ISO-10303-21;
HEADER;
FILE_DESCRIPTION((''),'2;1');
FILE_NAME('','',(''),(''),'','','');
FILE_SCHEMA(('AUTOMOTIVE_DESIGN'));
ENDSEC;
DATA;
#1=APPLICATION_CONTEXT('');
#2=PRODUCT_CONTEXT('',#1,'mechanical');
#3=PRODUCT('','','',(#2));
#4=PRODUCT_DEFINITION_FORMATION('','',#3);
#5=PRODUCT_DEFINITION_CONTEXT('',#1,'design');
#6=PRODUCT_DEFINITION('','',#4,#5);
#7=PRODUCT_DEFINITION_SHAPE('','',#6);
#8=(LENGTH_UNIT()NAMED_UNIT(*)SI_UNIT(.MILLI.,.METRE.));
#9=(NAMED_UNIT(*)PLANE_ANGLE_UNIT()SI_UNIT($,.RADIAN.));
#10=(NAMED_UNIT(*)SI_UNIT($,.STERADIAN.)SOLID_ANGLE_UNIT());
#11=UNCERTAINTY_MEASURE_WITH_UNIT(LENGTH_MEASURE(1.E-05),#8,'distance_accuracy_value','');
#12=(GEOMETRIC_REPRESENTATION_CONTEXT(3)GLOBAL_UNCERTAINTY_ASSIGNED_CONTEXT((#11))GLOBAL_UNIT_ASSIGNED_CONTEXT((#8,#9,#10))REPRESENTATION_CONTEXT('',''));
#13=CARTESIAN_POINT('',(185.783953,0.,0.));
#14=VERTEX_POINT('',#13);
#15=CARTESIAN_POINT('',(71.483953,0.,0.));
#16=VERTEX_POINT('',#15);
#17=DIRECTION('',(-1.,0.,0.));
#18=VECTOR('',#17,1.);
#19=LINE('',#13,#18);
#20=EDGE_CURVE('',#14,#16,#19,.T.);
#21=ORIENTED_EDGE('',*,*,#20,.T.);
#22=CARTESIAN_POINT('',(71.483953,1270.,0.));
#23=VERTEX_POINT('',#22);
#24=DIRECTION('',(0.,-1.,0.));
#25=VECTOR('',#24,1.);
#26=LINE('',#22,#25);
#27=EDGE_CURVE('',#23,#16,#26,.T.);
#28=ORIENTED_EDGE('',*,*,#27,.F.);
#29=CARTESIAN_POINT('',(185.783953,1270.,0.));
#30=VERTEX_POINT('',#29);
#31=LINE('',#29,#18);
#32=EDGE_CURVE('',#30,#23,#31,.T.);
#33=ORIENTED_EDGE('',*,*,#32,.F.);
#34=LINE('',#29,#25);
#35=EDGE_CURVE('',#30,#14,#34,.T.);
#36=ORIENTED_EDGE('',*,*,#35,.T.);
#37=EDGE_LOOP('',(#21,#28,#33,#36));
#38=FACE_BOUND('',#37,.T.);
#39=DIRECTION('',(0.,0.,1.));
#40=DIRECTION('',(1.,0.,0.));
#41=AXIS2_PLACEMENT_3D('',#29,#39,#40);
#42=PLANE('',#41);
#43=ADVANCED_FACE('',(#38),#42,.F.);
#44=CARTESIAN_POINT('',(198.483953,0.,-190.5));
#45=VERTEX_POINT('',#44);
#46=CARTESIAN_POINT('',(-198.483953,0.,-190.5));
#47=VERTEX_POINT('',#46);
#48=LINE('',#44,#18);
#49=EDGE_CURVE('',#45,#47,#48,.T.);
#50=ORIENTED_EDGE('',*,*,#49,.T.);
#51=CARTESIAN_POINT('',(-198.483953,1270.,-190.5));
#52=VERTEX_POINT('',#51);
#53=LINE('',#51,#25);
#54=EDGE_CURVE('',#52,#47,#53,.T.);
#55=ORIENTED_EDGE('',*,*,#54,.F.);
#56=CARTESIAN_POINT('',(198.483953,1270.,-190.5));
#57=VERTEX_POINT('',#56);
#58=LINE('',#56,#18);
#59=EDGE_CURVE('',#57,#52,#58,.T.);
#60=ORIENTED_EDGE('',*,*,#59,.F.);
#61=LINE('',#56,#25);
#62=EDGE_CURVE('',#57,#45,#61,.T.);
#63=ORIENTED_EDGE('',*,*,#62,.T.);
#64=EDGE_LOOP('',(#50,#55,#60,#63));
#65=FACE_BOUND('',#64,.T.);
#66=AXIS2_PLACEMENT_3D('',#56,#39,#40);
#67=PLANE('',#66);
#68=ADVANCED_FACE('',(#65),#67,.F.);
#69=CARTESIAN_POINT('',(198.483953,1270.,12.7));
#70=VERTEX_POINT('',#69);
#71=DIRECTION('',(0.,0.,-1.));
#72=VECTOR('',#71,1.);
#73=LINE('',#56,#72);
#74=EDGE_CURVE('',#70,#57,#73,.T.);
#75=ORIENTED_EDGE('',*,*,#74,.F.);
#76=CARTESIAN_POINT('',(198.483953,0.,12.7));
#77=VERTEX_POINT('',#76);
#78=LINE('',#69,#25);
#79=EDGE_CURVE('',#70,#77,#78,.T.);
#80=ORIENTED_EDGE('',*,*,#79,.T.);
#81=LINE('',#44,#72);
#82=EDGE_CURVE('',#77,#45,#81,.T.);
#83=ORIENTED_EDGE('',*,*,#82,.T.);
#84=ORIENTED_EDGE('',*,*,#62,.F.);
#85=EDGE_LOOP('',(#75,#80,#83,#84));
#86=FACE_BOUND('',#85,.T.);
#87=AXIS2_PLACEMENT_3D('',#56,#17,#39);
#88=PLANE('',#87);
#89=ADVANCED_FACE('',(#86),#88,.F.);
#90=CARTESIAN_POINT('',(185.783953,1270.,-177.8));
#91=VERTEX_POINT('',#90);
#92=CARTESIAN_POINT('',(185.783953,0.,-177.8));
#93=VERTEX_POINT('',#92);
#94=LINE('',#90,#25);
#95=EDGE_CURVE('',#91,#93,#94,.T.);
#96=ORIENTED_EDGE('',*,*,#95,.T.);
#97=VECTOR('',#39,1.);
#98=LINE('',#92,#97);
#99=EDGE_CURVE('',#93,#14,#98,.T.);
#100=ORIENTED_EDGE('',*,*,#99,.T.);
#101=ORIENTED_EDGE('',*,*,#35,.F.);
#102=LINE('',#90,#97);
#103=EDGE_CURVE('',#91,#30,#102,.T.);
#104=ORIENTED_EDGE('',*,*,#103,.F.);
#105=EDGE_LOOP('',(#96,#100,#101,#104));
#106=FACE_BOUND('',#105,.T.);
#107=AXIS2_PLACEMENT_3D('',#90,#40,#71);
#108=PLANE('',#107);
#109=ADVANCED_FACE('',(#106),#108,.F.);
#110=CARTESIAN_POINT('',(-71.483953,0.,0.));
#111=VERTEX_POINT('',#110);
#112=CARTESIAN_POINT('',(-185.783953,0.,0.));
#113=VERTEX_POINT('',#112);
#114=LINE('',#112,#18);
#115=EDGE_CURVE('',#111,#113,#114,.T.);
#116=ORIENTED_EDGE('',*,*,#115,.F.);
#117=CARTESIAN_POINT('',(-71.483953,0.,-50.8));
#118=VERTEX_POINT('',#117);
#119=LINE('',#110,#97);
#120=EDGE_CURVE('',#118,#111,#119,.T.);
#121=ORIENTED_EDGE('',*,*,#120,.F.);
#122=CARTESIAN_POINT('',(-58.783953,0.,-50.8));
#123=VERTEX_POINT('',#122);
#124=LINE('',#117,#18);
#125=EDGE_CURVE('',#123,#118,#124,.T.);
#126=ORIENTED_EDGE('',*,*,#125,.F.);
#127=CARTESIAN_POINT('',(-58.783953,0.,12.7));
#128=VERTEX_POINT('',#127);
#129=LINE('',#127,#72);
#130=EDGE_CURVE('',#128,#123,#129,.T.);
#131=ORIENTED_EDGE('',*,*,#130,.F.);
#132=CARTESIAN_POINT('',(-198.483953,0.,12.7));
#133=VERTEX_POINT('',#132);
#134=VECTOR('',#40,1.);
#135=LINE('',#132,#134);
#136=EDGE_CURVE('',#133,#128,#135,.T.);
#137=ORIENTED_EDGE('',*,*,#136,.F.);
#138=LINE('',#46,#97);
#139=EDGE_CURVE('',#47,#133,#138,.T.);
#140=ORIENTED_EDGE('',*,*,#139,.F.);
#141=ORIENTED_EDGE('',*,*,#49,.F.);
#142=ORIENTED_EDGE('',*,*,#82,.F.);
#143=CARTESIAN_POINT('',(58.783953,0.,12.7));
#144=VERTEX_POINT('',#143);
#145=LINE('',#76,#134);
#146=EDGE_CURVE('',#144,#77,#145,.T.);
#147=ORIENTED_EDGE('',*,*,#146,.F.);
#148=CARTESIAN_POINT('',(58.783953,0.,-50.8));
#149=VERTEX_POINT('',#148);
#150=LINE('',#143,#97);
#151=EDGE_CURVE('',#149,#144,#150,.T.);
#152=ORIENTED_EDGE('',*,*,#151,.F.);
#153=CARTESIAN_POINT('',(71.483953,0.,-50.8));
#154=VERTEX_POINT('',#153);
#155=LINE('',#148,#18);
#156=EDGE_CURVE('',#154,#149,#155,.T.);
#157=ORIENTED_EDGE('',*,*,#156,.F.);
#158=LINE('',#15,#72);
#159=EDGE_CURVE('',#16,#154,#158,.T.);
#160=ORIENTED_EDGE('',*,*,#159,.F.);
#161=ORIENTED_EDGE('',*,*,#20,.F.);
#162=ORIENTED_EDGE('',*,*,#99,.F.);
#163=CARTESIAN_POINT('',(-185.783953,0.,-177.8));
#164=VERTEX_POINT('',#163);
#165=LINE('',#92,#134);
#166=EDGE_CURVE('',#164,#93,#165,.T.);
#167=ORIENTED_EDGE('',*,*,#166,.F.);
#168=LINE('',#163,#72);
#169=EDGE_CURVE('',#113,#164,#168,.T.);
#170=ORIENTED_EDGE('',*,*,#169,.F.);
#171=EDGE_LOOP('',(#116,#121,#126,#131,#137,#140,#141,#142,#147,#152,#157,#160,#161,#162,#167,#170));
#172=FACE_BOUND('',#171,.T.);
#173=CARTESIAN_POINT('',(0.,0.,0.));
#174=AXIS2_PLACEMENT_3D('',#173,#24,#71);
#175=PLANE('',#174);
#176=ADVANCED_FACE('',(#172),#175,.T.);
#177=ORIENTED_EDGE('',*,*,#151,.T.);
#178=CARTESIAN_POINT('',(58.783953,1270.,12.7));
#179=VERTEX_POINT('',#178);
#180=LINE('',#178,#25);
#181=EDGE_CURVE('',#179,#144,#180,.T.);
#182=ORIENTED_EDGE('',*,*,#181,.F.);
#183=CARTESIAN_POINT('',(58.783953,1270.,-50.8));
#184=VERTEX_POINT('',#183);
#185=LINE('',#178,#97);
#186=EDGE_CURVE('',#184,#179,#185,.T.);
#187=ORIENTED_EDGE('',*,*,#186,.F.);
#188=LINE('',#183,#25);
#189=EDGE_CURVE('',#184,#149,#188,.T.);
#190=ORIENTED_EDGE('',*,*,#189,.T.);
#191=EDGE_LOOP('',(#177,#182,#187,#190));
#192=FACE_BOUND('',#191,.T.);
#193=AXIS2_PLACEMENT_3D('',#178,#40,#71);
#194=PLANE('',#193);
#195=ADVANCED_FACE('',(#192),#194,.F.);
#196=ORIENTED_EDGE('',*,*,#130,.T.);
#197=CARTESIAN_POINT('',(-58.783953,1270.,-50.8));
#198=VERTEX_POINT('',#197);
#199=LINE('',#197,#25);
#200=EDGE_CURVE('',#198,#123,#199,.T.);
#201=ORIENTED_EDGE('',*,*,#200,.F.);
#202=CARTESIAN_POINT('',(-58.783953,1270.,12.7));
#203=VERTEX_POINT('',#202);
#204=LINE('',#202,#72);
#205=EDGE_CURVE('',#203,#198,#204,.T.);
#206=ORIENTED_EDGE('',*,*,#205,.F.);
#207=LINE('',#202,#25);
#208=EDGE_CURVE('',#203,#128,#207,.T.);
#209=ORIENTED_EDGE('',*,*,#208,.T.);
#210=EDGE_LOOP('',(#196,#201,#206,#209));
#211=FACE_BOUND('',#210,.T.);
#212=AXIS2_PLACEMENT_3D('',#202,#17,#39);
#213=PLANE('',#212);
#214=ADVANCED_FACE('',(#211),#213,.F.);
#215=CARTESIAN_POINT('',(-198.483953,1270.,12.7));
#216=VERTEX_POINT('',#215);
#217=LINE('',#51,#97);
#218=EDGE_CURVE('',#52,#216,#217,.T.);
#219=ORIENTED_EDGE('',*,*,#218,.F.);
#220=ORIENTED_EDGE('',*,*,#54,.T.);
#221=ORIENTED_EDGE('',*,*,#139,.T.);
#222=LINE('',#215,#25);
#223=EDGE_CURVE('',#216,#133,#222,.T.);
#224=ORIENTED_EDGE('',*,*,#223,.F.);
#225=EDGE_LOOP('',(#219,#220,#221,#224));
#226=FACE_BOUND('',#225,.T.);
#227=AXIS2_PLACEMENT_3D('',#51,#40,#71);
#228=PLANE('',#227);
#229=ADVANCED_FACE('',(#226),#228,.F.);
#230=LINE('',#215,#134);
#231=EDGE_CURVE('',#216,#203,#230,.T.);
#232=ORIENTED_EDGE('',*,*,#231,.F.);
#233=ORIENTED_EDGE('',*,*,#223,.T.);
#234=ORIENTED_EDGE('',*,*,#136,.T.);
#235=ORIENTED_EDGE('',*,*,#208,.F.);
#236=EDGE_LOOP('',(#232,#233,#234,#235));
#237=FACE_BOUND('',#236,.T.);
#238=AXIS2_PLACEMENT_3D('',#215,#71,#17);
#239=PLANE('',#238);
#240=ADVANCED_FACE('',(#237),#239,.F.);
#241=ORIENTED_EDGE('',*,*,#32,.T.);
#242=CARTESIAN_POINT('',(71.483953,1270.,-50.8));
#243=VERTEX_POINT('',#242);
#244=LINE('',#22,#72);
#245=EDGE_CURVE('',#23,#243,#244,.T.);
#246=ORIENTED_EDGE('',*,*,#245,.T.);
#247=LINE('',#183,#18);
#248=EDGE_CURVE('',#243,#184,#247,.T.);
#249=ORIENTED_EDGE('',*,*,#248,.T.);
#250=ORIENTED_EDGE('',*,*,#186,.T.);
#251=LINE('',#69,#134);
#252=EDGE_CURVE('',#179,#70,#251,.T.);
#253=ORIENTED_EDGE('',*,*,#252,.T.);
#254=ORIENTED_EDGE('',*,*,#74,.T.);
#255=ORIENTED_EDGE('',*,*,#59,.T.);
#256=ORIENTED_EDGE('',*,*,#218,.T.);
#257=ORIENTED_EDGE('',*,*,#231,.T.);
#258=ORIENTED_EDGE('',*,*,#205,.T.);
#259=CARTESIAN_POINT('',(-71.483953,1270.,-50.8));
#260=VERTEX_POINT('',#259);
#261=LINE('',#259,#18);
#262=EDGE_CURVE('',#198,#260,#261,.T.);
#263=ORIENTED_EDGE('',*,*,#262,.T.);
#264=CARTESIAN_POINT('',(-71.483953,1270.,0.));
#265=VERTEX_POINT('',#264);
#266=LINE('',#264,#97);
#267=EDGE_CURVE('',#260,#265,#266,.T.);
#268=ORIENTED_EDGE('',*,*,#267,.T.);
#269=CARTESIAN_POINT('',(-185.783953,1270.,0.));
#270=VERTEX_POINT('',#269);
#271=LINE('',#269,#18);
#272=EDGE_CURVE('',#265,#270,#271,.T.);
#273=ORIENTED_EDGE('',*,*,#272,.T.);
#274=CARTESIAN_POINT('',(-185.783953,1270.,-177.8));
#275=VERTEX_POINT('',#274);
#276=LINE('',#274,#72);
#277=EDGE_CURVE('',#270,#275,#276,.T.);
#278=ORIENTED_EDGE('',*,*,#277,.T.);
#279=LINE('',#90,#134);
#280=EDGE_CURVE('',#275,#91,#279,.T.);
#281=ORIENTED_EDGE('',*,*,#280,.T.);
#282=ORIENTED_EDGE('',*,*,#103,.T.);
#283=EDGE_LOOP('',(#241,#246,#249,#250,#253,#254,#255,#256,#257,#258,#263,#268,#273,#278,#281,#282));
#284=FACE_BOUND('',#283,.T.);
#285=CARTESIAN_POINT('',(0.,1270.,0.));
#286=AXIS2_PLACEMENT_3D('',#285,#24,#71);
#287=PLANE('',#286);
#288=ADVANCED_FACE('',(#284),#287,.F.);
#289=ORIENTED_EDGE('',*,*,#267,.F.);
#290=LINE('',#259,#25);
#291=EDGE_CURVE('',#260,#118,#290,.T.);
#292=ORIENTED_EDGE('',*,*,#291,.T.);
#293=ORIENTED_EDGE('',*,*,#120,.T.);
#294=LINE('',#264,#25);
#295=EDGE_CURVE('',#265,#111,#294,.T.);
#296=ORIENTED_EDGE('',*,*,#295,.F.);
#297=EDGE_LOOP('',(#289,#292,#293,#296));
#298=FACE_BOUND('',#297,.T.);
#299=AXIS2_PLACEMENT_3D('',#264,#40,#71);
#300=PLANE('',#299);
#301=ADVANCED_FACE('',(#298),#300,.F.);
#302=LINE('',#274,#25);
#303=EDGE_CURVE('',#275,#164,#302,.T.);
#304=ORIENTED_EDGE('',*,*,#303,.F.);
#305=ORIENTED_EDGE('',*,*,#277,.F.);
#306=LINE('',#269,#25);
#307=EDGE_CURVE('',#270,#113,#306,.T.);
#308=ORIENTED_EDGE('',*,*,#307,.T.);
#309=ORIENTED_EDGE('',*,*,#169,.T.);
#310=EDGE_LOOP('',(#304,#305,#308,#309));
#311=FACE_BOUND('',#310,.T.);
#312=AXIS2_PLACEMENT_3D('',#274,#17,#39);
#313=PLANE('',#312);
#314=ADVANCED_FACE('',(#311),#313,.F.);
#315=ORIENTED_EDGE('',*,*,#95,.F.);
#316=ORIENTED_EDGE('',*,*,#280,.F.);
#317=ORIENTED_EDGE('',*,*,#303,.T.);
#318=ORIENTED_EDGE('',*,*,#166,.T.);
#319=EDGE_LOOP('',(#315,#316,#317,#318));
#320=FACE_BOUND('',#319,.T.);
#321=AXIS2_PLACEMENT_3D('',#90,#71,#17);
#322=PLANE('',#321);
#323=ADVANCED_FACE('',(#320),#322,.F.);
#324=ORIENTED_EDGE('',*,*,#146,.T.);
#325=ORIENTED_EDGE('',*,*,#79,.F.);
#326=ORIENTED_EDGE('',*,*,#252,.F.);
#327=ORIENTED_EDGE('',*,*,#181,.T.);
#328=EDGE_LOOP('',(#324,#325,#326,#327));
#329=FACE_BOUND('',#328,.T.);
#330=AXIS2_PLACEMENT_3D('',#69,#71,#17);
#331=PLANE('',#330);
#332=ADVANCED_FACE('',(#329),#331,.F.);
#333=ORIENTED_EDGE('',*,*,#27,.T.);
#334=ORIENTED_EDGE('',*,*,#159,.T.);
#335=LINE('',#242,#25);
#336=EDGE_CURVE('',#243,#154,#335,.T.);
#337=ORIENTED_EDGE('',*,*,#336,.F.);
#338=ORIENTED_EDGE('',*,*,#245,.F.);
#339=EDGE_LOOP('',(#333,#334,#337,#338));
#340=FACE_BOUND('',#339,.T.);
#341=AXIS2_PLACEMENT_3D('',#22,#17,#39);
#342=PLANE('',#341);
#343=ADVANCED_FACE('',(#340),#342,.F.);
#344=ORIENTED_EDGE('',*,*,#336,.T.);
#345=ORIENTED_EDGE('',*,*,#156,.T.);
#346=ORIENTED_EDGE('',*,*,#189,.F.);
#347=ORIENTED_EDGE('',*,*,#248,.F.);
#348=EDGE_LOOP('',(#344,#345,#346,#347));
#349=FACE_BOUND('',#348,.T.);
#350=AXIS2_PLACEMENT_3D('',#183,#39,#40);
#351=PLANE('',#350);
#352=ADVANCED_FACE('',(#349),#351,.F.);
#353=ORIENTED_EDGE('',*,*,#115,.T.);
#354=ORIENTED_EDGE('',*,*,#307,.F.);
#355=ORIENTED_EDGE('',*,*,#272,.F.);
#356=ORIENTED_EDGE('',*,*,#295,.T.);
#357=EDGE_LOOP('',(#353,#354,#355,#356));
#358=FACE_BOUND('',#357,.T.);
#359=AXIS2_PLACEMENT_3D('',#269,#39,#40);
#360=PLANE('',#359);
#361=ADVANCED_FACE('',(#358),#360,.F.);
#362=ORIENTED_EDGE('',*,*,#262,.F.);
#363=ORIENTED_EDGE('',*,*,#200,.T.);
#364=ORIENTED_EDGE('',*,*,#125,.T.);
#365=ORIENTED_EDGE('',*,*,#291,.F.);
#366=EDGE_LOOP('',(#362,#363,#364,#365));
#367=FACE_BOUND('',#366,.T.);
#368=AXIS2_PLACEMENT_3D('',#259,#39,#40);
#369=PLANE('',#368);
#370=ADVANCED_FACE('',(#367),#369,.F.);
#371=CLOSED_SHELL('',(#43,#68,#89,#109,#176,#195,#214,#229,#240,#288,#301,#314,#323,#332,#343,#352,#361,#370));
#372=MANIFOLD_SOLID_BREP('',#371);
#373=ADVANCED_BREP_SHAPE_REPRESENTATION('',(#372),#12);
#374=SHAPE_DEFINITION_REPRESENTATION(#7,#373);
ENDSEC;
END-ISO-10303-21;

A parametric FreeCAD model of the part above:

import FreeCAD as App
import Part
import Sketcher

V = App.Vector
Q = App.Units.Quantity


def add_polygon(sketch, points):
    """Adds a closed chain of lines whose ends are joined by coincident constraints."""
    first, n = sketch.GeometryCount, len(points)
    for a, b in zip(points, points[1:] + points[:1]):
        sketch.addGeometry(Part.LineSegment(App.Vector(*a, 0), App.Vector(*b, 0)), False)
    for i in range(n):
        sketch.addConstraint(Sketcher.Constraint("Coincident", first + i, 2, first + (i + 1) % n, 1))

doc = App.newDocument("Part")
params = doc.addObject("Spreadsheet::Sheet", "Params")
for row, (alias, value) in enumerate([
    ("sketch1_height", "8 in"),
    ("sketch1_height2", "2 in"),
    ("sketch1_height3", "7 in"),
    ("sketch1_width", "5.5 in"),
    ("sketch1_width2", "0.5 in"),
    ("pad1_length", "50 in"),
], start=1):
    params.set(f"A{row}", alias)
    params.set(f"B{row}", "=" + value)
    params.setAlias(f"B{row}", alias)

body = doc.addObject("PartDesign::Body", "Body")

sketch1 = body.newObject("Sketcher::SketchObject", "Sketch")
sketch1.AttachmentSupport = (doc.getObject("XZ_Plane"), [""])
sketch1.MapMode = "FlatFace"
add_polygon(sketch1, [(58.783953, -50.8), (58.783953, 12.7), (198.483953, 12.7), (198.483953, -190.5), (-198.483953, -190.5), (-198.483953, 12.7), (-58.783953, 12.7), (-58.783953, -50.8), (-71.483953, -50.8), (-71.483953, 0), (-185.783953, 0), (-185.783953, -177.8), (185.783953, -177.8), (185.783953, 0), (71.483953, 0), (71.483953, -50.8)])
sketch1.addConstraint(Sketcher.Constraint("Vertical", 0))
sketch1.addConstraint(Sketcher.Constraint("Horizontal", 1))
sketch1.addConstraint(Sketcher.Constraint("Vertical", 2))
sketch1.addConstraint(Sketcher.Constraint("Horizontal", 3))
sketch1.addConstraint(Sketcher.Constraint("Vertical", 4))
sketch1.addConstraint(Sketcher.Constraint("Horizontal", 5))
sketch1.addConstraint(Sketcher.Constraint("Vertical", 6))
sketch1.addConstraint(Sketcher.Constraint("Horizontal", 7))
sketch1.addConstraint(Sketcher.Constraint("Vertical", 8))
sketch1.addConstraint(Sketcher.Constraint("Horizontal", 9))
sketch1.addConstraint(Sketcher.Constraint("Vertical", 10))
sketch1.addConstraint(Sketcher.Constraint("Horizontal", 11))
sketch1.addConstraint(Sketcher.Constraint("Vertical", 12))
sketch1.addConstraint(Sketcher.Constraint("Horizontal", 13))
sketch1.addConstraint(Sketcher.Constraint("Vertical", 14))
sketch1.addConstraint(Sketcher.Constraint("Horizontal", 15))
sketch1.addConstraint(Sketcher.Constraint("Symmetric", 9, 2, 12, 2, -1, 1))
sketch1.addConstraint(Sketcher.Constraint("Symmetric", 1, 2, 4, 2, -2))
sketch1.addConstraint(Sketcher.Constraint("Symmetric", 8, 2, 13, 2, -2))
sketch1.addConstraint(Sketcher.Constraint("Symmetric", 6, 2, 15, 2, -2))
sketch1.addConstraint(Sketcher.Constraint("DistanceY", 2, 2, 2, 1, Q("8 in")))
sketch1.addConstraint(Sketcher.Constraint("DistanceY", 8, 1, 8, 2, Q("2 in")))
sketch1.addConstraint(Sketcher.Constraint("DistanceY", 10, 2, 10, 1, Q("7 in")))
sketch1.addConstraint(Sketcher.Constraint("DistanceX", 1, 1, 1, 2, Q("5.5 in")))
sketch1.addConstraint(Sketcher.Constraint("DistanceX", 7, 2, 7, 1, Q("0.5 in")))
sketch1.addConstraint(Sketcher.Constraint("DistanceX", 9, 2, 9, 1, Q("4.5 in")))
sketch1.addConstraint(Sketcher.Constraint("DistanceY", 0, 1, 0, 2, Q("2.5 in")))
sketch1.addConstraint(Sketcher.Constraint("DistanceX", 3, 2, 3, 1, 396.967906))
sketch1.setExpression("Constraints[36]", "Params.sketch1_height")
sketch1.setExpression("Constraints[37]", "Params.sketch1_height2")
sketch1.setExpression("Constraints[38]", "Params.sketch1_height3")
sketch1.setExpression("Constraints[39]", "Params.sketch1_width")
sketch1.setExpression("Constraints[40]", "Params.sketch1_width2")
pad1 = body.newObject("PartDesign::Pad", "Pad")
pad1.Profile = sketch1
pad1.setExpression("Length", "Params.pad1_length")
pad1.Reversed = True

doc.recompute()
